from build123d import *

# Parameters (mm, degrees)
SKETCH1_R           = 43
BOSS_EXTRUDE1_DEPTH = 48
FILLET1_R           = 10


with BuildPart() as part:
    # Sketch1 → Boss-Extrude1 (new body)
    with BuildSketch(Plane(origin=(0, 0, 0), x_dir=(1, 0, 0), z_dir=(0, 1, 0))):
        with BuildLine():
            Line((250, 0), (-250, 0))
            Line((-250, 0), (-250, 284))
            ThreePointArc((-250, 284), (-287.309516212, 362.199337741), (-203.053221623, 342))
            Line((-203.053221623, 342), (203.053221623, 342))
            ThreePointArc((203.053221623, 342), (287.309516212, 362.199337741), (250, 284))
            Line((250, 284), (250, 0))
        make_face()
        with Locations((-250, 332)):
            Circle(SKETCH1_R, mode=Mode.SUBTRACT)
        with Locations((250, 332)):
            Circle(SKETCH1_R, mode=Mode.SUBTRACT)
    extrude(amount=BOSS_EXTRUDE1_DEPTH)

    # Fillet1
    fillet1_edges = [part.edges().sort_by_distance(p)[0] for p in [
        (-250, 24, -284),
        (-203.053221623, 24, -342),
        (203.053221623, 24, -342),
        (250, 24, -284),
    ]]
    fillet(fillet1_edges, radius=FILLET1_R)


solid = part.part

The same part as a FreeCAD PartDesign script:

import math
import FreeCAD as App
import Part
import Sketcher

V = App.Vector
Q = App.Units.Quantity


def edges_at(feature, points):
    """Names of the edges that pass closest to the given points."""
    edges = feature.Shape.Edges
    near = lambda p: min(range(len(edges)), key=lambda i: edges[i].distToShape(Part.Vertex(*p))[0])
    return sorted({f"Edge{near(p) + 1}" for p in points})

doc = App.newDocument("Part")
body = doc.addObject("PartDesign::Body", "Body")

# Sketch on XZ plane
sketch1 = doc.addObject("Sketcher::SketchObject", "Sketch")
body.addObject(sketch1)
sketch1.AttachmentSupport = (doc.XZ_Plane, [""])
sketch1.MapMode = "FlatFace"
sketch1.addGeometry(Part.LineSegment(V(-250, 0, 0), V(250, 0, 0)), False)
sketch1.addGeometry(Part.LineSegment(V(250, 0, 0), V(250, -284, 0)), False)
sketch1.addGeometry(Part.ArcOfCircle(Part.Circle(V(250, -332, 0), V(0, 0, 1), 48), math.radians(-168), math.radians(90)), False)
sketch1.addGeometry(Part.LineSegment(V(203, -342, 0), V(-203, -342, 0)), False)
sketch1.addGeometry(Part.ArcOfCircle(Part.Circle(V(-250, -332, 0), V(0, 0, 1), 48), math.radians(90), math.radians(348)), False)
sketch1.addGeometry(Part.LineSegment(V(-250, -284, 0), V(-250, 0, 0)), False)
sketch1.addGeometry(Part.Circle(V(250, -332, 0), V(0, 0, 1), 43), False)
sketch1.addGeometry(Part.Circle(V(-250, -332, 0), V(0, 0, 1), 43), False)
sketch1.addConstraint(Sketcher.Constraint("Coincident", 0, 2, 1, 1))
sketch1.addConstraint(Sketcher.Constraint("Coincident", 1, 2, 2, 2))
sketch1.addConstraint(Sketcher.Constraint("Coincident", 2, 1, 3, 1))
sketch1.addConstraint(Sketcher.Constraint("Coincident", 3, 2, 4, 2))
sketch1.addConstraint(Sketcher.Constraint("Coincident", 4, 1, 5, 1))
sketch1.addConstraint(Sketcher.Constraint("Coincident", 5, 2, 0, 1))
sketch1.addConstraint(Sketcher.Constraint("Horizontal", 0))
sketch1.addConstraint(Sketcher.Constraint("Vertical", 1))
sketch1.addConstraint(Sketcher.Constraint("Horizontal", 3))
sketch1.addConstraint(Sketcher.Constraint("Vertical", 5))
sketch1.addConstraint(Sketcher.Constraint("Coincident", 6, 3, 2, 3))
sketch1.addConstraint(Sketcher.Constraint("Coincident", 7, 3, 4, 3))
sketch1.addConstraint(Sketcher.Constraint("Equal", 2, 4))
sketch1.addConstraint(Sketcher.Constraint("Equal", 6, 7))
sketch1.addConstraint(Sketcher.Constraint("Symmetric", 0, 2, 5, 2, -1, 1))
sketch1.addConstraint(Sketcher.Constraint("Symmetric", 2, 3, 4, 3, -2))
sketch1.addConstraint(Sketcher.Constraint("Vertical", 6, 3, 0, 2))
sketch1.addConstraint(Sketcher.Constraint("Diameter", 6, Q("86 mm")))
sketch1.addConstraint(Sketcher.Constraint("Radius", 2, Q("48 mm")))
sketch1.addConstraint(Sketcher.Constraint("DistanceX", 0, 1, 0, 2, Q("500 mm")))
sketch1.addConstraint(Sketcher.Constraint("DistanceY", 1, 2, 1, 1, Q("284 mm")))
sketch1.addConstraint(Sketcher.Constraint("DistanceY", 2, 1, -1, 1, Q("342 mm")))
pad1 = doc.addObject("PartDesign::Pad", "Pad")
body.addObject(pad1)
pad1.Profile = sketch1
pad1.Length = 48
pad1.Reversed = True
doc.recompute()

fillet = doc.addObject("PartDesign::Fillet", "Fillet")
body.addObject(fillet)
fillet.Base = (pad1, edges_at(pad1, [
    (-250, 24, -284),
    (-203.053, 24, -342),
    (203.053, 24, -342),
    (250, 24, -284),
]))
fillet.Radius = 10

doc.recompute()
